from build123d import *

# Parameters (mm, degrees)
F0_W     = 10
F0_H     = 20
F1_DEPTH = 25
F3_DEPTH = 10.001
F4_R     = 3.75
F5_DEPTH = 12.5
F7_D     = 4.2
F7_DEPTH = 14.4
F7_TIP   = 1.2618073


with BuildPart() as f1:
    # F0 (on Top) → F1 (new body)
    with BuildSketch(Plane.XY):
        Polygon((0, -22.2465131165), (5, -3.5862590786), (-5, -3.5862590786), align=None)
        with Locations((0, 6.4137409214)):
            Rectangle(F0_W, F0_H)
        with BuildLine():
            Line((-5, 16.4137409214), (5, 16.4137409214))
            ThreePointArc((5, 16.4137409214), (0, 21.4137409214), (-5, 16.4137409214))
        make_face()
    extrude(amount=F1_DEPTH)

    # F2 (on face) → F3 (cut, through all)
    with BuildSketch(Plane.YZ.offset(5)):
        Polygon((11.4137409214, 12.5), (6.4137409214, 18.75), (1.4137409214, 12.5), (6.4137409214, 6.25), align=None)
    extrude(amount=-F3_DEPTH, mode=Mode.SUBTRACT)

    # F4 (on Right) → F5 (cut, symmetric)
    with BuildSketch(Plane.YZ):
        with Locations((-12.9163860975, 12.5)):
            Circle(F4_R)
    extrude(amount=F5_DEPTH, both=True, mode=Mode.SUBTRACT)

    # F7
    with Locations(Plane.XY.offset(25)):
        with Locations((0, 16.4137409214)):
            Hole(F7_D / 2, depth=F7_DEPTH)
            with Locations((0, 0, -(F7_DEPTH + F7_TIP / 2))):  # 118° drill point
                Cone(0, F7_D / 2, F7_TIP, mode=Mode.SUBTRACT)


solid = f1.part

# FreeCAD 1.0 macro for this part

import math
import FreeCAD as App
import Part
import Sketcher
from FreeCAD import Vector
Q = App.Units.Quantity


def add_polygon(sketch, points):
    """Adds a closed chain of lines whose ends are joined by coincident constraints."""
    first, n = sketch.GeometryCount, len(points)
    for a, b in zip(points, points[1:] + points[:1]):
        sketch.addGeometry(Part.LineSegment(App.Vector(*a, 0), App.Vector(*b, 0)), False)
    for i in range(n):
        sketch.addConstraint(Sketcher.Constraint("Coincident", first + i, 2, first + (i + 1) % n, 1))

doc = App.newDocument("Part")
params = doc.addObject("Spreadsheet::Sheet", "Params")
for row, (alias, value) in enumerate([
    ("sketch1_radius", "5 mm"),
    ("sketch1_height", "20 mm"),
    ("pad1_length", "25 mm"),
    ("sketch3_diameter", "7.5 mm"),
    ("pocket2_length", "25 mm"),
    ("sketch4_diameter", "4.2 mm"),
    ("hole_diameter", "4.2 mm"),
    ("hole_depth", "14.4 mm"),
], start=1):
    params.set(f"A{row}", alias)
    params.set(f"B{row}", "=" + value)
    params.setAlias(f"B{row}", alias)

body = doc.addObject("PartDesign::Body", "Body")

# Sketch on XY plane
sketch1 = doc.addObject("Sketcher::SketchObject", "Sketch")
body.addObject(sketch1)
sketch1.AttachmentSupport = (doc.XY_Plane, [""])
sketch1.MapMode = "FlatFace"
sketch1.addGeometry([
    Part.LineSegment(Vector(0, -22, 0), Vector(5, -4, 0)),  # 0
    Part.LineSegment(Vector(5, -4, 0), Vector(5, 16, 0)),  # 1
    Part.ArcOfCircle(Part.Circle(Vector(0, 16, 0), Vector(0, 0, 1), 5), math.radians(0), math.radians(180)),  # 2
    Part.LineSegment(Vector(-5, 16, 0), Vector(-5, -4, 0)),  # 3
    Part.LineSegment(Vector(-5, -4, 0), Vector(0, -22, 0)),  # 4
], False)
sketch1.addConstraint([
    Sketcher.Constraint("Coincident", 0, 2, 1, 1),
    Sketcher.Constraint("Tangent", 1, 2, 2, 1),
    Sketcher.Constraint("Tangent", 2, 2, 3, 1),
    Sketcher.Constraint("Coincident", 3, 2, 4, 1),
    Sketcher.Constraint("Coincident", 4, 2, 0, 1),
    Sketcher.Constraint("Vertical", 1),
    Sketcher.Constraint("Vertical", 3),
    Sketcher.Constraint("Symmetric", 0, 2, 3, 2, -2),
    Sketcher.Constraint("PointOnObject", 4, 2, -2),
    Sketcher.Constraint("Radius", 2, 5.0),
    Sketcher.Constraint("DistanceY", 1, 1, 1, 2, 20.0),
    Sketcher.Constraint("Angle", 0, Q("75 deg")),
    Sketcher.Constraint("DistanceY", -1, 1, 2, 3, 16.413741),
])
sketch1.setExpression("Constraints[9]", "Params.sketch1_radius")
sketch1.setExpression("Constraints[10]", "Params.sketch1_height")
pad1 = doc.addObject("PartDesign::Pad", "Pad")
body.addObject(pad1)
pad1.Profile = sketch1
pad1.setExpression("Length", "Params.pad1_length")

# Sketch on YZ plane
sketch2 = doc.addObject("Sketcher::SketchObject", "Sketch001")
body.addObject(sketch2)
sketch2.AttachmentSupport = (doc.YZ_Plane, [""])
sketch2.MapMode = "FlatFace"
sketch2.AttachmentOffset = App.Placement(Vector(0, 0, 5), App.Rotation())
add_polygon(sketch2, [(11, 12), (6, 19), (1, 12), (6, 6)])  # lines 0-3
sketch2.addConstraint([
    Sketcher.Constraint("Parallel", 0, 2),
    Sketcher.Constraint("Parallel", 1, 3),
    Sketcher.Constraint("Horizontal", 1, 2, 3, 2),
    Sketcher.Constraint("Vertical", 0, 2, 2, 2),
    Sketcher.Constraint("DistanceX", 1, 2, 0, 2, 5.0),
    Sketcher.Constraint("DistanceY", -1, 1, 1, 2, 12.5),
    Sketcher.Constraint("DistanceY", 2, 2, 0, 2, 12.5),
    Sketcher.Constraint("DistanceX", -1, 1, 0, 2, 6.413741),
])
pocket1 = doc.addObject("PartDesign::Pocket", "Pocket")
body.addObject(pocket1)
pocket1.Profile = sketch2
pocket1.Type = "ThroughAll"

# Sketch on YZ plane
sketch3 = doc.addObject("Sketcher::SketchObject", "Sketch002")
body.addObject(sketch3)
sketch3.AttachmentSupport = (doc.YZ_Plane, [""])
sketch3.MapMode = "FlatFace"
sketch3.addGeometry(Part.Circle(Vector(-12.9, 12.5, 0), Vector(0, 0, 1), 3.8), False)
sketch3.addConstraint([
    Sketcher.Constraint("Diameter", 0, 7.5),
    Sketcher.Constraint("DistanceY", -1, 1, 0, 3, 12.5),
    Sketcher.Constraint("DistanceX", 0, 3, -1, 1, 12.916386),
])
sketch3.setExpression("Constraints[0]", "Params.sketch3_diameter")
pocket2 = doc.addObject("PartDesign::Pocket", "Pocket001")
body.addObject(pocket2)
pocket2.Profile = sketch3
pocket2.setExpression("Length", "Params.pocket2_length")
pocket2.Midplane = True

# Sketch on XY plane
sketch4 = doc.addObject("Sketcher::SketchObject", "Sketch003")
body.addObject(sketch4)
sketch4.AttachmentSupport = (doc.XY_Plane, [""])
sketch4.MapMode = "FlatFace"
sketch4.AttachmentOffset = App.Placement(Vector(0, 0, 25), App.Rotation())
sketch4.addGeometry(Part.Circle(Vector(0, 16.4, 0), Vector(0, 0, 1), 2.1), False)
sketch4.addConstraint([
    Sketcher.Constraint("PointOnObject", 0, 3, -2),
    Sketcher.Constraint("Diameter", 0, 4.2),
    Sketcher.Constraint("DistanceY", -1, 1, 0, 3, 16.413741),
])
sketch4.setExpression("Constraints[1]", "Params.sketch4_diameter")
doc.recompute()
hole = doc.addObject("PartDesign::Hole", "Hole")
body.addObject(hole)
hole.Profile = sketch4
hole.ThreadType = "None"
hole.setExpression("Diameter", "Params.hole_diameter")
hole.DepthType = "Dimension"
hole.setExpression("Depth", "Params.hole_depth")
hole.DrillPoint = "Angled"
hole.DrillPointAngle = 118

doc.recompute()
